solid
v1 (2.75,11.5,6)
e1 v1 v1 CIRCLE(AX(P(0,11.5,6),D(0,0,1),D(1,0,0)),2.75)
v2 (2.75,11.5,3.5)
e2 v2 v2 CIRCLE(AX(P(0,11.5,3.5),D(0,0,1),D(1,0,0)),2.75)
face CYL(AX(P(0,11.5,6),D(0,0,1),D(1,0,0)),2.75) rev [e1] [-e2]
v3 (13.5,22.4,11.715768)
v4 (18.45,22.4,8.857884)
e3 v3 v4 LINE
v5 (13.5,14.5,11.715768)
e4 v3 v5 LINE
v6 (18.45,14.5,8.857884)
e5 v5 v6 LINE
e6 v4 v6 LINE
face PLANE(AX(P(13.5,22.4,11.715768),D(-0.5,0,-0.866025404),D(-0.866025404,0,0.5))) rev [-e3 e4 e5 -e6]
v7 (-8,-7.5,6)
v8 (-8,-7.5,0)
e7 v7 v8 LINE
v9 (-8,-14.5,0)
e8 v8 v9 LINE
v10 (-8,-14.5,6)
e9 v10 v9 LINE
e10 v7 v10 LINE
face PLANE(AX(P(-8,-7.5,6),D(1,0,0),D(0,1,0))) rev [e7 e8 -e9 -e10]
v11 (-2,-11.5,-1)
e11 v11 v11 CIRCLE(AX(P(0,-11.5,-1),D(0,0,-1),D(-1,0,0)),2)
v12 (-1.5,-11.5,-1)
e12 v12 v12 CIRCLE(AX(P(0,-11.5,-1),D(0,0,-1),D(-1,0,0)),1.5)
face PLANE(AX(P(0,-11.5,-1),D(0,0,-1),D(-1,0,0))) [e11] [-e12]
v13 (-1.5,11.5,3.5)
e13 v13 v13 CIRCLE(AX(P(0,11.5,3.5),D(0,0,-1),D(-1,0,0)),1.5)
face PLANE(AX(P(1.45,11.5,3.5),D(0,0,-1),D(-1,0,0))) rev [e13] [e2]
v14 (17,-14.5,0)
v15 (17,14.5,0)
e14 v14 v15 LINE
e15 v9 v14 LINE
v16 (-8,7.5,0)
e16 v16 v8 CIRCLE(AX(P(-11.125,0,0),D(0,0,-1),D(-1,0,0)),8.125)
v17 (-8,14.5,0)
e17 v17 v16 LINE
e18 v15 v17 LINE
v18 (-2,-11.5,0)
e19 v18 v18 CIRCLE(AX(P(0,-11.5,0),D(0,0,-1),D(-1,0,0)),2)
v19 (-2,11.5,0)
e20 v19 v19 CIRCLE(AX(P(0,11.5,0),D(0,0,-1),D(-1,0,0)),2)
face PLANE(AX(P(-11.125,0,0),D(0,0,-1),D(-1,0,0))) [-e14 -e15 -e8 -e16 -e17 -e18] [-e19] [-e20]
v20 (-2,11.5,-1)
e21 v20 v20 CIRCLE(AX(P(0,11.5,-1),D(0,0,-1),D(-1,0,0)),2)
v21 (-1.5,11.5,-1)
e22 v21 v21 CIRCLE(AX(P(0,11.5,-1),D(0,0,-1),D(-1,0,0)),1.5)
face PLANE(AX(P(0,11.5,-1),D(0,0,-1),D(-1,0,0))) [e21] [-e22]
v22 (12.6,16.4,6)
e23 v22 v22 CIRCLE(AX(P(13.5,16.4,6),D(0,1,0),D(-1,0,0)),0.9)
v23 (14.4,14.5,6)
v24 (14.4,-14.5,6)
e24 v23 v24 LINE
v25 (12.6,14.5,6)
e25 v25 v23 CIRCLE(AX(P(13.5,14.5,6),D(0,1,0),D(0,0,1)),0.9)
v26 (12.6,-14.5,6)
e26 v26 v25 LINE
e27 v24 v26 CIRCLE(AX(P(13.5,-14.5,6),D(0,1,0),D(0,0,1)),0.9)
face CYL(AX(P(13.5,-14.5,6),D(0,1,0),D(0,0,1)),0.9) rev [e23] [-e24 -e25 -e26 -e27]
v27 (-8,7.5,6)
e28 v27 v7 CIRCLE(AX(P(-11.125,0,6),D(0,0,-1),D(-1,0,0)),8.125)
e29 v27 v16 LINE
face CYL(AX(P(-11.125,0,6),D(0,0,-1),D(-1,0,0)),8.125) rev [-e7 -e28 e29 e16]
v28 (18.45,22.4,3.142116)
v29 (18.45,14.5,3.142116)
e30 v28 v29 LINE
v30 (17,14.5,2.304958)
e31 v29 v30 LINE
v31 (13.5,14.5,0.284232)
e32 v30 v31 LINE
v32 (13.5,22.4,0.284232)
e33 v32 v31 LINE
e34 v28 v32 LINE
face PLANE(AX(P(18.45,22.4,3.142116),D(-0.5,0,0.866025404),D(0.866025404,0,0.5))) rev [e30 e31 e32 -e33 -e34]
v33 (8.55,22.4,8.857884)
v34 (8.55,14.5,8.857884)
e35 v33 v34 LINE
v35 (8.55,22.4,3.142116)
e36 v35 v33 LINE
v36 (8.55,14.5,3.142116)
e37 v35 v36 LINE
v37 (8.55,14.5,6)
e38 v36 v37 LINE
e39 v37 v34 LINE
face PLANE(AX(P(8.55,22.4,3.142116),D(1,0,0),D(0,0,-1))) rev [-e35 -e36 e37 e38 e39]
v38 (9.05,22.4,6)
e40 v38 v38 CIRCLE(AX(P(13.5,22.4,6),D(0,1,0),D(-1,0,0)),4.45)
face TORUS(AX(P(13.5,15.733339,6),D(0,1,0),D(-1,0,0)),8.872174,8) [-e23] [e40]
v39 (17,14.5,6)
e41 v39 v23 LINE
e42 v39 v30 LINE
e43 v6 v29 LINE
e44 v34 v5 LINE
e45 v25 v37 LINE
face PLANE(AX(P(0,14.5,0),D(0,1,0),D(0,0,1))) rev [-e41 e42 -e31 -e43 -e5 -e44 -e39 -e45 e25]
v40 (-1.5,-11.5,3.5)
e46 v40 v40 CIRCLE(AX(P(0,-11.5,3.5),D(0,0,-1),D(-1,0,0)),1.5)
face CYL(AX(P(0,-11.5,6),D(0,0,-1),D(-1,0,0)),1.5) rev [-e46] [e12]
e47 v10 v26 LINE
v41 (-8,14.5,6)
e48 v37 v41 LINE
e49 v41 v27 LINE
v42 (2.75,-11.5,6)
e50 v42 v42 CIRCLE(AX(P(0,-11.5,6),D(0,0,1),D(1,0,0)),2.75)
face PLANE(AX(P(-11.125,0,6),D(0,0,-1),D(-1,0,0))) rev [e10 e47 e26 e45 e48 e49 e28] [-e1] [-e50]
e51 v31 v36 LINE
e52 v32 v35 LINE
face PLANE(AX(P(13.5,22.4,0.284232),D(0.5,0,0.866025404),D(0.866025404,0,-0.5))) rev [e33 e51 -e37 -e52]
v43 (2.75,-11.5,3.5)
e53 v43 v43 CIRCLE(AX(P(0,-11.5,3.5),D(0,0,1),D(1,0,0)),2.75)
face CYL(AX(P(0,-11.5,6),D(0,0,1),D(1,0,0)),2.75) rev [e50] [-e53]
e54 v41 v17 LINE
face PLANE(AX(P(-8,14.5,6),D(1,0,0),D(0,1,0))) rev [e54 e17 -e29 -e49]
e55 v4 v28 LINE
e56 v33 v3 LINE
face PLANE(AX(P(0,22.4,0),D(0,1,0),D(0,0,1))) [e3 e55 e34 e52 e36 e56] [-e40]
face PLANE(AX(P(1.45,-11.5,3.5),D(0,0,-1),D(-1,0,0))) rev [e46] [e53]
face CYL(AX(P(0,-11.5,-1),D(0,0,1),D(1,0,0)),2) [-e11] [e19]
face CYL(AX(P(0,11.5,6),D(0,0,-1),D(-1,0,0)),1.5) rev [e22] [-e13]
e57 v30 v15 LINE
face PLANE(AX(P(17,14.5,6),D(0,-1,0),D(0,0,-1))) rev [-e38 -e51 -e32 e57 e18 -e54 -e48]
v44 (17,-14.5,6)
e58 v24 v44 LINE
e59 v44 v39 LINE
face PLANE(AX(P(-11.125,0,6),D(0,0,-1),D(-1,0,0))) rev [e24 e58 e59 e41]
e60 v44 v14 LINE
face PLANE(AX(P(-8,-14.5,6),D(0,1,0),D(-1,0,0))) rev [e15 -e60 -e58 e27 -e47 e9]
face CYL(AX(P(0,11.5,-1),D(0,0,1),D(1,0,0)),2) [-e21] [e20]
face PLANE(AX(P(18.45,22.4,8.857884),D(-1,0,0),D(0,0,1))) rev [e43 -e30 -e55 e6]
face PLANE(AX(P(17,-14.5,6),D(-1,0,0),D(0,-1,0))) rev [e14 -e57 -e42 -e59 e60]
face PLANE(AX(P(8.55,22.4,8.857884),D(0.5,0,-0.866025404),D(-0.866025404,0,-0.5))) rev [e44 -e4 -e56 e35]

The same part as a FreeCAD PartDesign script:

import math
import FreeCAD as App
import Part
import Sketcher
Q = App.Units.Quantity

doc = App.newDocument("Part")
body = doc.addObject("PartDesign::Body", "Body")

# Sketch on XY plane
sketch1 = doc.addObject("Sketcher::SketchObject", "Sketch")
body.addObject(sketch1)
sketch1.AttachmentSupport = (doc.XY_Plane, [""])
sketch1.MapMode = "FlatFace"
sketch1.addGeometry([
    Part.LineSegment(App.Vector(17, 14.5, 0), App.Vector(-8, 14.5, 0)),  # 0
    Part.LineSegment(App.Vector(-8, 14.5, 0), App.Vector(-8, 7.5, 0)),  # 1
    Part.ArcOfCircle(Part.Circle(App.Vector(-11.1, 0, 0), App.Vector(0, 0, 1), 8.1), math.radians(-67), math.radians(67)),  # 2
    Part.LineSegment(App.Vector(-8, -7.5, 0), App.Vector(-8, -14.5, 0)),  # 3
    Part.LineSegment(App.Vector(-8, -14.5, 0), App.Vector(17, -14.5, 0)),  # 4
    Part.LineSegment(App.Vector(17, -14.5, 0), App.Vector(17, 14.5, 0)),  # 5
    Part.Circle(App.Vector(0, -11.5, 0), App.Vector(0, 0, 1), 1.5),  # 6
    Part.Circle(App.Vector(0, 11.5, 0), App.Vector(0, 0, 1), 1.5),  # 7
], False)
sketch1.addConstraint([
    Sketcher.Constraint("Coincident", 0, 2, 1, 1),
    Sketcher.Constraint("Coincident", 1, 2, 2, 2),
    Sketcher.Constraint("Coincident", 2, 1, 3, 1),
    Sketcher.Constraint("Coincident", 3, 2, 4, 1),
    Sketcher.Constraint("Coincident", 4, 2, 5, 1),
    Sketcher.Constraint("Coincident", 5, 2, 0, 1),
    Sketcher.Constraint("Horizontal", 0),
    Sketcher.Constraint("Vertical", 1),
    Sketcher.Constraint("Vertical", 3),
    Sketcher.Constraint("Horizontal", 4),
    Sketcher.Constraint("Vertical", 5),
    Sketcher.Constraint("Equal", 6, 7),
    Sketcher.Constraint("Symmetric", 6, 3, 7, 3, -1, 1),
    Sketcher.Constraint("Symmetric", 1, 2, 2, 1, -1),
    Sketcher.Constraint("PointOnObject", 6, 3, -2),
    Sketcher.Constraint("Equal", 1, 3),
    Sketcher.Constraint("Diameter", 6, 3.0),
    Sketcher.Constraint("DistanceX", 0, 2, 0, 1, 25.0),
    Sketcher.Constraint("DistanceY", 1, 2, 1, 1, 7.0),
    Sketcher.Constraint("DistanceY", 5, 1, 5, 2, 29.0),
    Sketcher.Constraint("DistanceX", 0, 2, -1, 1, 8.0),
    Sketcher.Constraint("Radius", 2, 8.125),
    Sketcher.Constraint("DistanceY", 6, 3, 7, 3, 23.0),
])
pad1 = doc.addObject("PartDesign::Pad", "Pad")
body.addObject(pad1)
pad1.Profile = sketch1
pad1.Length = 6

# Sketch on XZ plane
sketch2 = doc.addObject("Sketcher::SketchObject", "Sketch001")
body.addObject(sketch2)
sketch2.AttachmentSupport = (doc.XZ_Plane, [""])
sketch2.MapMode = "FlatFace"
sketch2.AttachmentOffset = App.Placement(App.Vector(0, 0, -14.5), App.Rotation())
sketch2.addGeometry(Part.Circle(App.Vector(13.5, 6, 0), App.Vector(0, 0, 1), 0.9), False)
sketch2.addConstraint([
    Sketcher.Constraint("Diameter", 0, 1.8),
    Sketcher.Constraint("DistanceY", -1, 1, 0, 3, 6.0),
    Sketcher.Constraint("DistanceX", -1, 1, 0, 3, 13.5),
])
pocket1 = doc.addObject("PartDesign::Pocket", "Pocket")
body.addObject(pocket1)
pocket1.Profile = sketch2
pocket1.Type = "ThroughAll"
pocket1.Reversed = True

# Sketch on XZ plane
sketch3 = doc.addObject("Sketcher::SketchObject", "Sketch002")
body.addObject(sketch3)
sketch3.AttachmentSupport = (doc.XZ_Plane, [""])
sketch3.MapMode = "FlatFace"
sketch3.AttachmentOffset = App.Placement(App.Vector(0, 0, -22.4), App.Rotation())
sketch3.addGeometry([
    Part.LineSegment(App.Vector(13.5, 0.3, 0), App.Vector(8.6, 3.1, 0)),  # 0
    Part.LineSegment(App.Vector(8.6, 3.1, 0), App.Vector(8.6, 8.9, 0)),  # 1
    Part.LineSegment(App.Vector(8.6, 8.9, 0), App.Vector(13.5, 11.7, 0)),  # 2
    Part.LineSegment(App.Vector(13.5, 11.7, 0), App.Vector(18.4, 8.9, 0)),  # 3
    Part.LineSegment(App.Vector(18.4, 8.9, 0), App.Vector(18.4, 3.1, 0)),  # 4
    Part.LineSegment(App.Vector(18.4, 3.1, 0), App.Vector(13.5, 0.3, 0)),  # 5
    Part.Circle(App.Vector(13.5, 6, 0), App.Vector(0, 0, 1), 0.9),  # 6
], False)
sketch3.addConstraint([
    Sketcher.Constraint("Coincident", 0, 2, 1, 1),
    Sketcher.Constraint("Coincident", 1, 2, 2, 1),
    Sketcher.Constraint("Coincident", 2, 2, 3, 1),
    Sketcher.Constraint("Coincident", 3, 2, 4, 1),
    Sketcher.Constraint("Coincident", 4, 2, 5, 1),
    Sketcher.Constraint("Coincident", 5, 2, 0, 1),
    Sketcher.Constraint("Vertical", 1),
    Sketcher.Constraint("Vertical", 4),
    Sketcher.Constraint("Parallel", 0, 3),
    Sketcher.Constraint("Parallel", 2, 5),
    Sketcher.Constraint("Horizontal", 1, 2, 3, 2),
    Sketcher.Constraint("Horizontal", 0, 2, 4, 2),
    Sketcher.Constraint("Vertical", 6, 3, 2, 2),
    Sketcher.Constraint("Vertical", 2, 2, 5, 2),
    Sketcher.Constraint("Diameter", 6, 1.8),
    Sketcher.Constraint("Angle", 0, Q("150 deg")),
    Sketcher.Constraint("DistanceY", -1, 1, 6, 3, 6.0),
    Sketcher.Constraint("DistanceX", -1, 1, 6, 3, 13.5),
    Sketcher.Constraint("DistanceX", 1, 2, 3, 2, 9.9),
    Sketcher.Constraint("DistanceY", 1, 1, 1, 2, 5.715768),
    Sketcher.Constraint("DistanceY", -1, 1, 0, 2, 3.142116),
])
pad2 = doc.addObject("PartDesign::Pad", "Pad001")
body.addObject(pad2)
pad2.Profile = sketch3
pad2.Length = 7.9

# Sketch on an angled plane
sketch4 = doc.addObject("Sketcher::SketchObject", "Sketch003")
body.addObject(sketch4)
sketch4.Placement = App.Placement(App.Vector(5.973076, 0, 10.345671), App.Rotation(App.Vector(0.866025404, 0, -0.5), App.Vector(0, 1, 0), App.Vector(0.5, 0, 0.866025404), "ZXY"))
sketch4.addGeometry([
    Part.LineSegment(App.Vector(9.6, 22.4, 0), App.Vector(9.6, 16.4, 0)),
    Part.ArcOfCircle(Part.Circle(App.Vector(17.6, 15.7, 0), App.Vector(0, 0, 1), 8), math.radians(124), math.radians(175)),
    Part.LineSegment(App.Vector(13.1, 22.4, 0), App.Vector(9.6, 22.4, 0)),
], False)
sketch4.addGeometry(Part.LineSegment(App.Vector(8.7, 22.4, 0), App.Vector(8.7, 15.7, 0)), True)  # axis
sketch4.addConstraint([
    Sketcher.Constraint("Coincident", 0, 2, 1, 2),
    Sketcher.Constraint("Coincident", 1, 1, 2, 1),
    Sketcher.Constraint("Coincident", 2, 2, 0, 1),
    Sketcher.Constraint("Vertical", 0),
    Sketcher.Constraint("Horizontal", 2),
    Sketcher.Constraint("Vertical", 3),
    Sketcher.Constraint("Horizontal", 2, 2, 3, 1),
    Sketcher.Constraint("Horizontal", 1, 3, 3, 2),
    Sketcher.Constraint("Radius", 1, 8.0),
    Sketcher.Constraint("DistanceY", 0, 2, 0, 1, 6.0),
    Sketcher.Constraint("DistanceX", 2, 2, 2, 1, 3.55),
    Sketcher.Constraint("DistanceY", -1, 1, 0, 2, 16.4),
    Sketcher.Constraint("DistanceX", 3, 1, 2, 2, 0.9),
    Sketcher.Constraint("DistanceX", -1, 1, 1, 3, 17.563517),
])
groove = doc.addObject("PartDesign::Groove", "Groove")
body.addObject(groove)
groove.Profile = sketch4
groove.ReferenceAxis = (sketch4, ["Axis0"])
groove.Angle = 360

# Sketch on YZ plane
sketch5 = doc.addObject("Sketcher::SketchObject", "Sketch004")
body.addObject(sketch5)
sketch5.AttachmentSupport = (doc.YZ_Plane, [""])
sketch5.MapMode = "FlatFace"
sketch5.addGeometry([
    Part.LineSegment(App.Vector(-11.5, 0, 0), App.Vector(-11.5, 6, 0)),  # 0
    Part.LineSegment(App.Vector(-11.5, 6, 0), App.Vector(-14.2, 6, 0)),  # 1
    Part.LineSegment(App.Vector(-14.2, 6, 0), App.Vector(-14.2, 3.5, 0)),  # 2
    Part.LineSegment(App.Vector(-14.2, 3.5, 0), App.Vector(-12.9, 3.5, 0)),  # 3
    Part.LineSegment(App.Vector(-12.9, 3.5, 0), App.Vector(-12.9, 0, 0)),  # 4
    Part.LineSegment(App.Vector(-12.9, 0, 0), App.Vector(-11.5, 0, 0)),  # 5
], False)
sketch5.addGeometry(Part.LineSegment(App.Vector(-11.5, 6, 0), App.Vector(-11.5, 0, 0)), True)  # axis
sketch5.addConstraint([
    Sketcher.Constraint("Coincident", 0, 2, 1, 1),
    Sketcher.Constraint("Coincident", 1, 2, 2, 1),
    Sketcher.Constraint("Coincident", 2, 2, 3, 1),
    Sketcher.Constraint("Coincident", 3, 2, 4, 1),
    Sketcher.Constraint("Coincident", 4, 2, 5, 1),
    Sketcher.Constraint("Coincident", 5, 2, 0, 1),
    Sketcher.Constraint("Vertical", 0),
    Sketcher.Constraint("Horizontal", 1),
    Sketcher.Constraint("Vertical", 2),
    Sketcher.Constraint("Horizontal", 3),
    Sketcher.Constraint("Vertical", 4),
    Sketcher.Constraint("Horizontal", 5),
    Sketcher.Constraint("Vertical", 6),
    Sketcher.Constraint("Coincident", 6, 1, 0, 2),
    Sketcher.Constraint("PointOnObject", 4, 2, -1),
    Sketcher.Constraint("PointOnObject", 6, 2, -1),
    Sketcher.Constraint("DistanceY", 0, 1, 0, 2, 6.0),
    Sketcher.Constraint("DistanceX", 3, 1, 3, 2, 1.3),
    Sketcher.Constraint("DistanceY", 2, 2, 2, 1, 2.5),
    Sketcher.Constraint("DistanceX", 1, 2, 1, 1, 2.75),
    Sketcher.Constraint("DistanceX", 0, 2, -1, 1, 11.5),
])
groove2 = doc.addObject("PartDesign::Groove", "Groove001")
body.addObject(groove2)
groove2.Profile = sketch5
groove2.ReferenceAxis = (sketch5, ["Axis0"])
groove2.Angle = 360
doc.recompute()

linearpattern = doc.addObject("PartDesign::LinearPattern", "LinearPattern")
body.addObject(linearpattern)
linearpattern.Originals = [groove2]
linearpattern.Direction = (doc.Y_Axis, [""])
linearpattern.Mode = "offset"
linearpattern.Offset = 23
linearpattern.Occurrences = 2
body.Tip = linearpattern
doc.recompute()

linearpattern2 = doc.addObject("PartDesign::LinearPattern", "LinearPattern001")
body.addObject(linearpattern2)
linearpattern2.Originals = [groove2]
linearpattern2.Direction = (doc.Y_Axis, [""])
linearpattern2.Mode = "offset"
linearpattern2.Offset = 23
linearpattern2.Occurrences = 2
body.Tip = linearpattern2

# Sketch on XY plane
sketch6 = doc.addObject("Sketcher::SketchObject", "Sketch005")
body.addObject(sketch6)
sketch6.AttachmentSupport = (doc.XY_Plane, [""])
sketch6.MapMode = "FlatFace"
sketch6.AttachmentOffset = App.Placement(App.Vector(0, 0, -1), App.Rotation())
sketch6.addGeometry([
    Part.Circle(App.Vector(0, 11.5, 0), App.Vector(0, 0, 1), 2),
    Part.Circle(App.Vector(0, 11.5, 0), App.Vector(0, 0, 1), 1.5),
    Part.Circle(App.Vector(0, -11.5, 0), App.Vector(0, 0, 1), 2),
    Part.Circle(App.Vector(0, -11.5, 0), App.Vector(0, 0, 1), 1.5),
], False)
sketch6.addConstraint([
    Sketcher.Constraint("Coincident", 1, 3, 0, 3),
    Sketcher.Constraint("Coincident", 3, 3, 2, 3),
    Sketcher.Constraint("Equal", 0, 2),
    Sketcher.Constraint("Equal", 1, 3),
    Sketcher.Constraint("Symmetric", 0, 3, 2, 3, -1, 1),
    Sketcher.Constraint("PointOnObject", 0, 3, -2),
    Sketcher.Constraint("Diameter", 0, 4.0),
    Sketcher.Constraint("Diameter", 1, 3.0),
    Sketcher.Constraint("DistanceY", 2, 3, 0, 3, 23.0),
])
pad3 = doc.addObject("PartDesign::Pad", "Pad002")
body.addObject(pad3)
pad3.Profile = sketch6
pad3.Length = 1

doc.recompute()
